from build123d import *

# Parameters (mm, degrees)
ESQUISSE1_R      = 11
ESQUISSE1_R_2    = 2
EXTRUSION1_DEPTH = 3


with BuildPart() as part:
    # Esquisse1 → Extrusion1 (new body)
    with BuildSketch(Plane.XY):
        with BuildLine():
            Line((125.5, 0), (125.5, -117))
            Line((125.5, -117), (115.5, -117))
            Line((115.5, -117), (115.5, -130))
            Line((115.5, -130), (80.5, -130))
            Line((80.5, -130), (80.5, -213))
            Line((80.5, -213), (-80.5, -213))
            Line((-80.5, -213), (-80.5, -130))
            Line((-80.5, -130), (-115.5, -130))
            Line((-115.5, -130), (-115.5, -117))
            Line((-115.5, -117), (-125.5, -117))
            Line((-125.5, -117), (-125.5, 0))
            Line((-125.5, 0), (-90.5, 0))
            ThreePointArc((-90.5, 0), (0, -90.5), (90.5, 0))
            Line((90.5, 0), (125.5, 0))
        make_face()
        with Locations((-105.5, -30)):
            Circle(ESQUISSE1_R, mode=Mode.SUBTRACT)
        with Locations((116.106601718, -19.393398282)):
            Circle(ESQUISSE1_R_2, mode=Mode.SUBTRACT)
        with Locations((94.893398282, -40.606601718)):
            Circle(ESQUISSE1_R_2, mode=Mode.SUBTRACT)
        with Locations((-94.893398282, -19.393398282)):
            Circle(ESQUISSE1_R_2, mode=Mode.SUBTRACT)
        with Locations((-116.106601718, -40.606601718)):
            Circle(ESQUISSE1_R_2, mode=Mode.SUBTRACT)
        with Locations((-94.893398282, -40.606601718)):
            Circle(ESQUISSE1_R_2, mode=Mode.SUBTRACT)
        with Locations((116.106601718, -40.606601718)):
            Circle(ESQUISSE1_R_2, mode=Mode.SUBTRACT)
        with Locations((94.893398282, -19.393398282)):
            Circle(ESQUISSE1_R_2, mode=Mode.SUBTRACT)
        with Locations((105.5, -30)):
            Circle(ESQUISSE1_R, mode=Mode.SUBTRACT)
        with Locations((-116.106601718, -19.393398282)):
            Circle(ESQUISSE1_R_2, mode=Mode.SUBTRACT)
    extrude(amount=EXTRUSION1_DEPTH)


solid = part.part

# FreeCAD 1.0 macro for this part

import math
import FreeCAD as App
import Part
import Sketcher

V = App.Vector
Q = App.Units.Quantity

doc = App.newDocument("Part")
body = doc.addObject("PartDesign::Body", "Body")

# Sketch on XY plane
sketch1 = body.newObject("Sketcher::SketchObject", "Sketch")
sketch1.AttachmentSupport = (doc.getObject("XY_Plane"), [""])
sketch1.MapMode = "FlatFace"
sketch1.addGeometry([
    Part.LineSegment(V(125.5, -117, 0), V(125.5, 0, 0)),  # 0
    Part.LineSegment(V(125.5, 0, 0), V(90.5, 0, 0)),  # 1
    Part.ArcOfCircle(Part.Circle(V(0, 0, 0), V(0, 0, 1), 90.5), math.radians(180), math.radians(360)),  # 2
    Part.LineSegment(V(-90.5, 0, 0), V(-125.5, 0, 0)),  # 3
    Part.LineSegment(V(-125.5, 0, 0), V(-125.5, -117, 0)),  # 4
    Part.LineSegment(V(-125.5, -117, 0), V(-115.5, -117, 0)),  # 5
    Part.LineSegment(V(-115.5, -117, 0), V(-115.5, -130, 0)),  # 6
    Part.LineSegment(V(-115.5, -130, 0), V(-80.5, -130, 0)),  # 7
    Part.LineSegment(V(-80.5, -130, 0), V(-80.5, -213, 0)),  # 8
    Part.LineSegment(V(-80.5, -213, 0), V(80.5, -213, 0)),  # 9
    Part.LineSegment(V(80.5, -213, 0), V(80.5, -130, 0)),  # 10
    Part.LineSegment(V(80.5, -130, 0), V(115.5, -130, 0)),  # 11
    Part.LineSegment(V(115.5, -130, 0), V(115.5, -117, 0)),  # 12
    Part.LineSegment(V(115.5, -117, 0), V(125.5, -117, 0)),  # 13
    Part.Circle(V(116.1, -40.6, 0), V(0, 0, 1), 2),  # 14
    Part.Circle(V(94.9, -40.6, 0), V(0, 0, 1), 2),  # 15
    Part.Circle(V(-94.9, -40.6, 0), V(0, 0, 1), 2),  # 16
    Part.Circle(V(-116.1, -40.6, 0), V(0, 0, 1), 2),  # 17
    Part.Circle(V(105.5, -30, 0), V(0, 0, 1), 11),  # 18
    Part.Circle(V(116.1, -19.4, 0), V(0, 0, 1), 2),  # 19
    Part.Circle(V(94.9, -19.4, 0), V(0, 0, 1), 2),  # 20
    Part.Circle(V(-105.5, -30, 0), V(0, 0, 1), 11),  # 21
    Part.Circle(V(-94.9, -19.4, 0), V(0, 0, 1), 2),  # 22
    Part.Circle(V(-116.1, -19.4, 0), V(0, 0, 1), 2),  # 23
], False)
sketch1.addConstraint([
    Sketcher.Constraint("Coincident", 0, 2, 1, 1),
    Sketcher.Constraint("Coincident", 1, 2, 2, 2),
    Sketcher.Constraint("Coincident", 2, 1, 3, 1),
    Sketcher.Constraint("Coincident", 3, 2, 4, 1),
    Sketcher.Constraint("Coincident", 4, 2, 5, 1),
    Sketcher.Constraint("Coincident", 5, 2, 6, 1),
    Sketcher.Constraint("Coincident", 6, 2, 7, 1),
    Sketcher.Constraint("Coincident", 7, 2, 8, 1),
    Sketcher.Constraint("Coincident", 8, 2, 9, 1),
    Sketcher.Constraint("Coincident", 9, 2, 10, 1),
    Sketcher.Constraint("Coincident", 10, 2, 11, 1),
    Sketcher.Constraint("Coincident", 11, 2, 12, 1),
    Sketcher.Constraint("Coincident", 12, 2, 13, 1),
    Sketcher.Constraint("Coincident", 13, 2, 0, 1),
    Sketcher.Constraint("Vertical", 0),
    Sketcher.Constraint("Horizontal", 1),
    Sketcher.Constraint("Horizontal", 3),
    Sketcher.Constraint("Vertical", 4),
    Sketcher.Constraint("Horizontal", 5),
    Sketcher.Constraint("Vertical", 6),
    Sketcher.Constraint("Horizontal", 7),
    Sketcher.Constraint("Vertical", 8),
    Sketcher.Constraint("Horizontal", 9),
    Sketcher.Constraint("Vertical", 10),
    Sketcher.Constraint("Horizontal", 11),
    Sketcher.Constraint("Vertical", 12),
    Sketcher.Constraint("Horizontal", 13),
    Sketcher.Constraint("Coincident", 2, 3, -1, 1),
    Sketcher.Constraint("Equal", 14, 15),
    Sketcher.Constraint("Equal", 15, 16),
    Sketcher.Constraint("Equal", 16, 17),
    Sketcher.Constraint("Equal", 17, 19),
    Sketcher.Constraint("Equal", 19, 20),
    Sketcher.Constraint("Equal", 18, 21),
    Sketcher.Constraint("Equal", 20, 22),
    Sketcher.Constraint("Equal", 22, 23),
    Sketcher.Constraint("Symmetric", 0, 2, 3, 2, -1, 1),
    Sketcher.Constraint("Symmetric", 15, 3, 16, 3, -2),
    Sketcher.Constraint("Symmetric", 14, 3, 17, 3, -2),
    Sketcher.Constraint("Symmetric", 18, 3, 21, 3, -2),
    Sketcher.Constraint("Symmetric", 20, 3, 22, 3, -2),
    Sketcher.Constraint("Symmetric", 19, 3, 23, 3, -2),
    Sketcher.Constraint("Symmetric", 7, 2, 10, 2, -2),
    Sketcher.Constraint("Symmetric", 5, 2, 12, 2, -2),
    Sketcher.Constraint("PointOnObject", 0, 2, -1),
    Sketcher.Constraint("Horizontal", 14, 3, 15, 3),
    Sketcher.Constraint("Horizontal", 19, 3, 20, 3),
    Sketcher.Constraint("Vertical", 14, 3, 19, 3),
    Sketcher.Constraint("Vertical", 15, 3, 20, 3),
    Sketcher.Constraint("Equal", 3, 7),
    Sketcher.Constraint("Diameter", 14, Q("4 mm")),
    Sketcher.Constraint("Diameter", 18, Q("22 mm")),
    Sketcher.Constraint("Radius", 2, Q("90.5 mm")),
    Sketcher.Constraint("DistanceX", 1, 2, 1, 1, Q("35 mm")),
    Sketcher.Constraint("DistanceX", 5, 1, 5, 2, Q("10 mm")),
    Sketcher.Constraint("DistanceY", 0, 1, 0, 2, Q("117 mm")),
    Sketcher.Constraint("DistanceY", 6, 2, 6, 1, Q("13 mm")),
    Sketcher.Constraint("DistanceY", 8, 2, 8, 1, Q("83 mm")),
    Sketcher.Constraint("DistanceY", 18, 3, -1, 1, Q("30 mm")),
    Sketcher.Constraint("DistanceX", 16, 3, 14, 3, Q("211 mm")),
    Sketcher.Constraint("DistanceX", 18, 3, 0, 2, Q("20 mm")),
    Sketcher.Constraint("DistanceX", -1, 1, 14, 3, Q("116.106602 mm")),
    Sketcher.Constraint("DistanceY", 14, 3, -1, 1, Q("40.606602 mm")),
    Sketcher.Constraint("DistanceY", 19, 3, -1, 1, Q("19.393398 mm")),
])
pad1 = body.newObject("PartDesign::Pad", "Pad")
pad1.Profile = sketch1
pad1.Length = 3

doc.recompute()
